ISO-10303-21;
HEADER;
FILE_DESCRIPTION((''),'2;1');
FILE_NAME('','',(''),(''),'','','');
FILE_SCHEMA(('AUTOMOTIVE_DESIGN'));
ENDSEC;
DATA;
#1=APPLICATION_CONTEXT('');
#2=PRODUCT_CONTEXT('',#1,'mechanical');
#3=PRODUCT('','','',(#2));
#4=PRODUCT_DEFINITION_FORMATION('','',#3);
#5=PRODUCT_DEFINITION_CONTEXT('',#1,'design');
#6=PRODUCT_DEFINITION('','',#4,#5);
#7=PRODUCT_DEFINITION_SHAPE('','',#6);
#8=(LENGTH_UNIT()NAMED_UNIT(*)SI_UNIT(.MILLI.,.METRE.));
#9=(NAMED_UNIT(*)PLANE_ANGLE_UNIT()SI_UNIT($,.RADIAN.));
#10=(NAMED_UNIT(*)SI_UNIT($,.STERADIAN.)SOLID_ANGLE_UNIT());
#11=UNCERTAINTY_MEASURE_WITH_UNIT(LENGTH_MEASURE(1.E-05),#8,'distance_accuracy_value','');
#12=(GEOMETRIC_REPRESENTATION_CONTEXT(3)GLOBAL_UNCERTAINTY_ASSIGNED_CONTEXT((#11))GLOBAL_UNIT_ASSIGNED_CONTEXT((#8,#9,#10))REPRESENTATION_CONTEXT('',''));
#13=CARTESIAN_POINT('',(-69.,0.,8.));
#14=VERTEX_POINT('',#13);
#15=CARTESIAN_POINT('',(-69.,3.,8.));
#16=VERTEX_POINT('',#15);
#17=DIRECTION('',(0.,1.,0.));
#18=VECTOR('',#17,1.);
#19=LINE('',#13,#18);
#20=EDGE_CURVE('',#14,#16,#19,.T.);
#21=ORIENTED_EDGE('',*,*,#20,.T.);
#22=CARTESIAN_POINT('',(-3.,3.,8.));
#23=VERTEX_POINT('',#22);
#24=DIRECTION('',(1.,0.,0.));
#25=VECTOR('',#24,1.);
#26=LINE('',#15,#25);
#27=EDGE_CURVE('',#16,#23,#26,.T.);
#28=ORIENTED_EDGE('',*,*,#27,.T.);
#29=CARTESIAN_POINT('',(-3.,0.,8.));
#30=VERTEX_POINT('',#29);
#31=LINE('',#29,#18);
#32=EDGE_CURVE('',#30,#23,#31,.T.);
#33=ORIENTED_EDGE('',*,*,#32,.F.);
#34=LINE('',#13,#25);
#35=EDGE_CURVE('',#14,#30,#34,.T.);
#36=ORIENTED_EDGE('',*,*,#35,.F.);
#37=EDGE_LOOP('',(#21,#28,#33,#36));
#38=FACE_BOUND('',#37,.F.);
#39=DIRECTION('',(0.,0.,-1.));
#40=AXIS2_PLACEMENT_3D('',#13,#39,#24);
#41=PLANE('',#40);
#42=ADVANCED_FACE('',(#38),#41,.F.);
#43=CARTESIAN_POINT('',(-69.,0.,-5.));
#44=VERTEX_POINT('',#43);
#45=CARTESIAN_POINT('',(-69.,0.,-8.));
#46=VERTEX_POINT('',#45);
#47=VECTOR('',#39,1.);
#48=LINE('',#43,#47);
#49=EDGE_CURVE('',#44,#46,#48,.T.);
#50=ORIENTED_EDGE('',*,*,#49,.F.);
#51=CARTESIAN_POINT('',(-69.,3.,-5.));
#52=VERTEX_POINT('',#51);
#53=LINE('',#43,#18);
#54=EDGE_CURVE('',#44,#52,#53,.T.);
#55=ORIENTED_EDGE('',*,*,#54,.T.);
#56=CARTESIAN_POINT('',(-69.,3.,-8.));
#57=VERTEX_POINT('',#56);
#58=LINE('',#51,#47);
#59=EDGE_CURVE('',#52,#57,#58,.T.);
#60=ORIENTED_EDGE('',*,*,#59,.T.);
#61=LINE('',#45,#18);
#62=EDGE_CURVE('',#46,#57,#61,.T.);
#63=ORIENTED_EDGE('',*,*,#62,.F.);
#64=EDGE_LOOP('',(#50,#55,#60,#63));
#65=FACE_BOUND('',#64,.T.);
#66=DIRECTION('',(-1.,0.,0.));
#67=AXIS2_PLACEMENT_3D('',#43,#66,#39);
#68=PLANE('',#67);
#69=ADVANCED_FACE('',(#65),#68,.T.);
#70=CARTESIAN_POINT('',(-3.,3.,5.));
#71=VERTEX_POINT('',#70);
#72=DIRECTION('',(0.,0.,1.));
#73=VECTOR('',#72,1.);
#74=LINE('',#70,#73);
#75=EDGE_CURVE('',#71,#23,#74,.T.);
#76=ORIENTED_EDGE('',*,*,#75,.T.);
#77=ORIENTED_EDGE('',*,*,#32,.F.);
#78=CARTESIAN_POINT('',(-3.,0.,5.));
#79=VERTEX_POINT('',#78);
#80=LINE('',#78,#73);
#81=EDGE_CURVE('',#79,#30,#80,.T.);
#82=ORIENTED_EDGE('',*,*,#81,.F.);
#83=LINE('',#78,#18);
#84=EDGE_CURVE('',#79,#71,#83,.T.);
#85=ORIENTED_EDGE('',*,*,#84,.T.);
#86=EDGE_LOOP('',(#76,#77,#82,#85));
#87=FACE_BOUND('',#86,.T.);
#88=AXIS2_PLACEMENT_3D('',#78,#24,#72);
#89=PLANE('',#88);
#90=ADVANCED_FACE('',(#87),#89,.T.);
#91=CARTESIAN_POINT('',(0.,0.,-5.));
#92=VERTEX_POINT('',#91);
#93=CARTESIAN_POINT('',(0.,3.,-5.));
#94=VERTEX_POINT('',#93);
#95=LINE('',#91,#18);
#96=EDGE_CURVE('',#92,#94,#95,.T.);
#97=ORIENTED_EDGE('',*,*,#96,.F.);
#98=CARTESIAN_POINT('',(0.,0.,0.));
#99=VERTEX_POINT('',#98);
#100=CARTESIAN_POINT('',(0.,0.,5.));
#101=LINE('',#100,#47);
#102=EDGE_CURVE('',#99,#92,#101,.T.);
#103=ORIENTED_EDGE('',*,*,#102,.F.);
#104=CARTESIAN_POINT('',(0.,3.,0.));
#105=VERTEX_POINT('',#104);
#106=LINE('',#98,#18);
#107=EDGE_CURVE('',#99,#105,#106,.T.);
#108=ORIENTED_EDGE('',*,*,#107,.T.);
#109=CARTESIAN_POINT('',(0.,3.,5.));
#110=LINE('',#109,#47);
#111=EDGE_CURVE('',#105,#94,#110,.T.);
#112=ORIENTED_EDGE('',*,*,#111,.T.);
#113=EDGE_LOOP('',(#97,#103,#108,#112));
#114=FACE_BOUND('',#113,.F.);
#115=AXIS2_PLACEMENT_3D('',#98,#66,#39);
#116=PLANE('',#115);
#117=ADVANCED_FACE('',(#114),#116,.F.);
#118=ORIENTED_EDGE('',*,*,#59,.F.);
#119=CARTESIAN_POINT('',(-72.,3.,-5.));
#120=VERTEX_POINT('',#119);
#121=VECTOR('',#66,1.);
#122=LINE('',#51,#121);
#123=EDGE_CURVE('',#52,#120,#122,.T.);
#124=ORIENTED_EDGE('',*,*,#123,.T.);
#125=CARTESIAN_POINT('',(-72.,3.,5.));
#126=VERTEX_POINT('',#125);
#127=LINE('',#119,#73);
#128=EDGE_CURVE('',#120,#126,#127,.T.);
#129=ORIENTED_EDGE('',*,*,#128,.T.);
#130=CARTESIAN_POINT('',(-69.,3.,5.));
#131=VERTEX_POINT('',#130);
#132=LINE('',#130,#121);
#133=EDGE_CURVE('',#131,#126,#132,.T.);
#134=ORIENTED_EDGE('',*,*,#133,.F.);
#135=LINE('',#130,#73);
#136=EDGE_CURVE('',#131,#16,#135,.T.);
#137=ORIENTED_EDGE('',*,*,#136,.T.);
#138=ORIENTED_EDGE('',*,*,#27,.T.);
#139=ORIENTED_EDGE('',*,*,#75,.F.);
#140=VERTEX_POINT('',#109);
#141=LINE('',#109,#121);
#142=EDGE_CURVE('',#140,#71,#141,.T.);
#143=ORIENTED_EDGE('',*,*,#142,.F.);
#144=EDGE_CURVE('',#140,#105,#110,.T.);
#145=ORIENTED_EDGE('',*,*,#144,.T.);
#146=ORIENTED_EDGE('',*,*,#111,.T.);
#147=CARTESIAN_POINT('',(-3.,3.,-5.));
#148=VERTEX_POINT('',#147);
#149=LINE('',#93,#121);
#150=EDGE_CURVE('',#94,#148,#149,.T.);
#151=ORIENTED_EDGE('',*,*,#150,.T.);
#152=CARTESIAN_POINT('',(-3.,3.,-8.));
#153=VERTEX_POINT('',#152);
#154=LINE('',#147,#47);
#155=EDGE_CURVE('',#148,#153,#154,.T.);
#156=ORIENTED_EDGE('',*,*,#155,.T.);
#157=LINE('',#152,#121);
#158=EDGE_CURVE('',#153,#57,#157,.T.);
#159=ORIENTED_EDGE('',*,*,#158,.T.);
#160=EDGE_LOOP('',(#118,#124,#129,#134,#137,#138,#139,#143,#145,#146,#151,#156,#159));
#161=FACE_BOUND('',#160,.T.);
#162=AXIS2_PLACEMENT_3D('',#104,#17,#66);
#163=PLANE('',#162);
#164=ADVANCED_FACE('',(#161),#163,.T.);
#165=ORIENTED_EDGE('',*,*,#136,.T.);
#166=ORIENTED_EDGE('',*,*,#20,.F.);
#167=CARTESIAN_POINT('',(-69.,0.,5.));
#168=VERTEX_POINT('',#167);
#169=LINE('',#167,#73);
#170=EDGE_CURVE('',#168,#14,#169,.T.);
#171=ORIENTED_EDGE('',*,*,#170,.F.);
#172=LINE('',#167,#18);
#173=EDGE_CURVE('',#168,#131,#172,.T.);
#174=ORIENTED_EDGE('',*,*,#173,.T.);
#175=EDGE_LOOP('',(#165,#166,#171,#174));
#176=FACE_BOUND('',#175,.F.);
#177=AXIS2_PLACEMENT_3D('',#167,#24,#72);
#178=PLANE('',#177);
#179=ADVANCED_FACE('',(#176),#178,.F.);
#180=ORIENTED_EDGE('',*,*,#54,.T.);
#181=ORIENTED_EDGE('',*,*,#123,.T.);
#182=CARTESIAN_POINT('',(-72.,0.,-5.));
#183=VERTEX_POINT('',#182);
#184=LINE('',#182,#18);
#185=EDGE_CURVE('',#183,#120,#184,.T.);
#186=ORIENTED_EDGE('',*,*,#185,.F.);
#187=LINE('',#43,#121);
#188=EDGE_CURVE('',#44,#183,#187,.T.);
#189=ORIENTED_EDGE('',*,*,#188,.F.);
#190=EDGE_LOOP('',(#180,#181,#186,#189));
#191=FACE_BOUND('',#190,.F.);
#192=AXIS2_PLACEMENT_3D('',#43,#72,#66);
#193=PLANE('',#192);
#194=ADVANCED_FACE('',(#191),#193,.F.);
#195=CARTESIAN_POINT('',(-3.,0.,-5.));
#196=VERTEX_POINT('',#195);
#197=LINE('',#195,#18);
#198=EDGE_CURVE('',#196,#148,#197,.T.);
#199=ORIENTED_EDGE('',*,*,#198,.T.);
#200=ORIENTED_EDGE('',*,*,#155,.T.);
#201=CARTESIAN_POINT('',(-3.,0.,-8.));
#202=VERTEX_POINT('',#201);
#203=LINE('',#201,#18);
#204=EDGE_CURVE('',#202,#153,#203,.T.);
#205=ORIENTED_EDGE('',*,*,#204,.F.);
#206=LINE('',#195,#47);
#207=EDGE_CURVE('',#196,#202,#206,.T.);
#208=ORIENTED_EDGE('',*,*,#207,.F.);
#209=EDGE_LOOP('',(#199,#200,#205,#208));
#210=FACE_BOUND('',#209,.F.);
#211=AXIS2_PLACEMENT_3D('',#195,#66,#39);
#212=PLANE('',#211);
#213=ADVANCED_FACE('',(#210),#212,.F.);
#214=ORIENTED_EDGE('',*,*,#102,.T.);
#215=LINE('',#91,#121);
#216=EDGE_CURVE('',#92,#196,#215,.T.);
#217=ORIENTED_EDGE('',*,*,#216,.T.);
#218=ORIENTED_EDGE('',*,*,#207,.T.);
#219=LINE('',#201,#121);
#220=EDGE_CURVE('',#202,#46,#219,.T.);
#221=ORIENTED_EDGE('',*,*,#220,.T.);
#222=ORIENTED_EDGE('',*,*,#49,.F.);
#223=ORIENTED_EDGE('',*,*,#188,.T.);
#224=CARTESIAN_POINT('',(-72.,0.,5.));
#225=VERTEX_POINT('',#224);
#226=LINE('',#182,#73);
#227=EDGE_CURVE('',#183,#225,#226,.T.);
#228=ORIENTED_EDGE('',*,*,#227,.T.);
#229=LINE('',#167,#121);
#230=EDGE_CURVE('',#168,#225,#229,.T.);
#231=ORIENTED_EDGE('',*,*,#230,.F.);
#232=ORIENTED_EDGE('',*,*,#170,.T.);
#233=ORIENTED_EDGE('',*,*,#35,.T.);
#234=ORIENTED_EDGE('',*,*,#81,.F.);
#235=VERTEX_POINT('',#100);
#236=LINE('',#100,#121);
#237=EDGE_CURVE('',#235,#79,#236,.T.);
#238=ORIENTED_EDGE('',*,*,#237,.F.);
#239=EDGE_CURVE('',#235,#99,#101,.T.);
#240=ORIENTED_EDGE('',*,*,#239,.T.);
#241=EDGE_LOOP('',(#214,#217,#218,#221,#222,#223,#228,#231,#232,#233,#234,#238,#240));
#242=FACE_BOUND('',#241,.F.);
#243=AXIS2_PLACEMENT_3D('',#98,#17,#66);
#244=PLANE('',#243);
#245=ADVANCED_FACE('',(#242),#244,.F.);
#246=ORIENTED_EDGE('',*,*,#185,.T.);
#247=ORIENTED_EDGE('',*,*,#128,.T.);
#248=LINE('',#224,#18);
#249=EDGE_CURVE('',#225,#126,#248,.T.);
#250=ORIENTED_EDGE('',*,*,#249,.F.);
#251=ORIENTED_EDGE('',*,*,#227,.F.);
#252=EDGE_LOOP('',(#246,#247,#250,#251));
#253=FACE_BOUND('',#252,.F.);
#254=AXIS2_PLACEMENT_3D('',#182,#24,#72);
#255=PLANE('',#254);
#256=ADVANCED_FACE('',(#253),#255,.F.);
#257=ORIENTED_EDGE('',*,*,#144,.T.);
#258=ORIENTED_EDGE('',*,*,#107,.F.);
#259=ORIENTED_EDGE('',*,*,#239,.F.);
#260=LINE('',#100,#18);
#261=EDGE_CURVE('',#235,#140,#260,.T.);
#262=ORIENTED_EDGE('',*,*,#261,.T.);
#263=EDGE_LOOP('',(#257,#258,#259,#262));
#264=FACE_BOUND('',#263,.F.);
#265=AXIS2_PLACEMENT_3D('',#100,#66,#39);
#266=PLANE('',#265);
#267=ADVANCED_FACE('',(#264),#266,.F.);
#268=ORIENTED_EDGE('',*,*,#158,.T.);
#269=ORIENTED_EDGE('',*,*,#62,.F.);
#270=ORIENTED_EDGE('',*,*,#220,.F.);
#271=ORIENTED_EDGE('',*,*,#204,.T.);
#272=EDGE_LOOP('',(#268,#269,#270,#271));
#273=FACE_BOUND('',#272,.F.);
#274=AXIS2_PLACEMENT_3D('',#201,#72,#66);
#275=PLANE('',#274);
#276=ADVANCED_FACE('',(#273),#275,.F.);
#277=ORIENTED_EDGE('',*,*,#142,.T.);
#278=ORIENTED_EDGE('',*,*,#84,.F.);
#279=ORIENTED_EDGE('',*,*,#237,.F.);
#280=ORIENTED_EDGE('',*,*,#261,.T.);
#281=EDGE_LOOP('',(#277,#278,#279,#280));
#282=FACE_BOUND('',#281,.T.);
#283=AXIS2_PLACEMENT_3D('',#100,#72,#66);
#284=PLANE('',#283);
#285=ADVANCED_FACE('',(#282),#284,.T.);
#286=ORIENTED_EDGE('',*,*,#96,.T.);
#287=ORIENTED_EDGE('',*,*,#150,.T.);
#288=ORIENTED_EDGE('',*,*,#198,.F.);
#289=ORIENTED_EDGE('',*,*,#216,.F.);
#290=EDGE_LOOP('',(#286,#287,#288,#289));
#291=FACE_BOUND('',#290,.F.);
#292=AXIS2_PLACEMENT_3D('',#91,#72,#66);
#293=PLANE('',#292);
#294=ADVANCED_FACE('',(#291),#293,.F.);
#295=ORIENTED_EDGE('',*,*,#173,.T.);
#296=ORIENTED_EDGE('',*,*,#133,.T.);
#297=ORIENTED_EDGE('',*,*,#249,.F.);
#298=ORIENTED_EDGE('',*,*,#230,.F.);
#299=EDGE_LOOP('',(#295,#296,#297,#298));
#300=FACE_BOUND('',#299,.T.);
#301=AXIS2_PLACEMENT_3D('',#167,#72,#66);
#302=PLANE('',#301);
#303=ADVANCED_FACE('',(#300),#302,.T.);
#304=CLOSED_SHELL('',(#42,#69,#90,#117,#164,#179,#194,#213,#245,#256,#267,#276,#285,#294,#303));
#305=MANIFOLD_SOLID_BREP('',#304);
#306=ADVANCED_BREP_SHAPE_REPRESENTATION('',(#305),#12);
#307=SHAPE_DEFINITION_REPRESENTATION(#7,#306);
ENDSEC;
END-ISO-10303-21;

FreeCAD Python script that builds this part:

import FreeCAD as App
import Part
import Sketcher

V = App.Vector
Q = App.Units.Quantity


def add_polygon(sketch, points):
    """Adds a closed chain of lines whose ends are joined by coincident constraints."""
    first, n = sketch.GeometryCount, len(points)
    for a, b in zip(points, points[1:] + points[:1]):
        sketch.addGeometry(Part.LineSegment(App.Vector(*a, 0), App.Vector(*b, 0)), False)
    for i in range(n):
        sketch.addConstraint(Sketcher.Constraint("Coincident", first + i, 2, first + (i + 1) % n, 1))

doc = App.newDocument("Part")
body = doc.addObject("PartDesign::Body", "Body")

sketch1 = doc.addObject("Sketcher::SketchObject", "Sketch")
body.addObject(sketch1)
sketch1.AttachmentSupport = (doc.XZ_Plane, [""])
sketch1.MapMode = "FlatFace"
add_polygon(sketch1, [(-3, 5), (0, 5), (0, -5), (-3, -5), (-3, -8), (-69, -8), (-69, -5), (-72, -5), (-72, 5), (-69, 5), (-69, 8), (-3, 8)])
sketch1.addConstraint([
    Sketcher.Constraint("Horizontal", 0),
    Sketcher.Constraint("Vertical", 1),
    Sketcher.Constraint("Horizontal", 2),
    Sketcher.Constraint("Vertical", 3),
    Sketcher.Constraint("Horizontal", 4),
    Sketcher.Constraint("Vertical", 5),
    Sketcher.Constraint("Horizontal", 6),
    Sketcher.Constraint("Vertical", 7),
    Sketcher.Constraint("Horizontal", 8),
    Sketcher.Constraint("Vertical", 9),
    Sketcher.Constraint("Horizontal", 10),
    Sketcher.Constraint("Vertical", 11),
    Sketcher.Constraint("Symmetric", 0, 2, 1, 2, -1, 1),
    Sketcher.Constraint("Symmetric", 5, 2, 8, 2, -1),
    Sketcher.Constraint("Symmetric", 3, 2, 10, 2, -1),
    Sketcher.Constraint("Horizontal", 2, 2, 5, 2),
    Sketcher.Constraint("Equal", 2, 6),
    Sketcher.Constraint("Equal", 8, 3),
    Sketcher.Constraint("DistanceX", 0, 1, 0, 2, Q("3 mm")),
    Sketcher.Constraint("DistanceX", 4, 2, 4, 1, Q("66 mm")),
    Sketcher.Constraint("DistanceY", 1, 2, 1, 1, Q("10 mm")),
])
pad1 = doc.addObject("PartDesign::Pad", "Pad")
body.addObject(pad1)
pad1.Profile = sketch1
pad1.Length = 3
pad1.Reversed = True

doc.recompute()
